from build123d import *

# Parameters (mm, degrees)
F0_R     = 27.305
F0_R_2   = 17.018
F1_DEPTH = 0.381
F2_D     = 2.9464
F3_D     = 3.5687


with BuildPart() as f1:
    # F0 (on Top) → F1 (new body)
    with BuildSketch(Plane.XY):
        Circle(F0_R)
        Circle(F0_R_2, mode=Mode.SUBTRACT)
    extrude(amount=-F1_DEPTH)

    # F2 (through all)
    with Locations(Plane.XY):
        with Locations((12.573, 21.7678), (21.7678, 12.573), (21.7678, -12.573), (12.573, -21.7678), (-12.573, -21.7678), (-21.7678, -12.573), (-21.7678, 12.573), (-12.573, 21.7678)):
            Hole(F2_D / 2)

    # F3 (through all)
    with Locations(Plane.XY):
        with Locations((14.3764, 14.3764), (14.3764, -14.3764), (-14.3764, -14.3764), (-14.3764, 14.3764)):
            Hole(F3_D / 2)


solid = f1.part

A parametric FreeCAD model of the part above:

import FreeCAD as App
import Part
import Sketcher
from FreeCAD import Vector
Q = App.Units.Quantity

doc = App.newDocument("Part")
body = doc.addObject("PartDesign::Body", "Body")

sketch1 = doc.addObject("Sketcher::SketchObject", "Sketch")
body.addObject(sketch1)
sketch1.AttachmentSupport = (doc.XY_Plane, [""])
sketch1.MapMode = "FlatFace"
sketch1.addGeometry([
    Part.Circle(Vector(0, 0, 0), Vector(0, 0, 1), 27),
    Part.Circle(Vector(0, 0, 0), Vector(0, 0, 1), 17),
], False)
sketch1.addConstraint([
    Sketcher.Constraint("Coincident", 0, 3, -1, 1),
    Sketcher.Constraint("Coincident", 1, 3, -1, 1),
    Sketcher.Constraint("Diameter", 0, Q("2.15 in")),
    Sketcher.Constraint("Diameter", 1, Q("1.34 in")),
])
pad1 = doc.addObject("PartDesign::Pad", "Pad")
body.addObject(pad1)
pad1.Profile = sketch1
pad1.Length = Q("0.015 in")
pad1.Reversed = True

sketch2 = doc.addObject("Sketcher::SketchObject", "Sketch001")
body.addObject(sketch2)
sketch2.AttachmentSupport = (doc.XY_Plane, [""])
sketch2.MapMode = "FlatFace"
sketch2.addGeometry([
    Part.Circle(Vector(12.6, 21.8, 0), Vector(0, 0, 1), 1.5),
    Part.Circle(Vector(21.8, 12.6, 0), Vector(0, 0, 1), 1.5),
    Part.Circle(Vector(21.8, -12.6, 0), Vector(0, 0, 1), 1.5),
    Part.Circle(Vector(12.6, -21.8, 0), Vector(0, 0, 1), 1.5),
    Part.Circle(Vector(-12.6, -21.8, 0), Vector(0, 0, 1), 1.5),
    Part.Circle(Vector(-21.8, -12.6, 0), Vector(0, 0, 1), 1.5),
    Part.Circle(Vector(-21.8, 12.6, 0), Vector(0, 0, 1), 1.5),
    Part.Circle(Vector(-12.6, 21.8, 0), Vector(0, 0, 1), 1.5),
], False)
sketch2.addConstraint([
    Sketcher.Constraint("Equal", 0, 1),
    Sketcher.Constraint("Equal", 1, 2),
    Sketcher.Constraint("Equal", 2, 3),
    Sketcher.Constraint("Equal", 3, 4),
    Sketcher.Constraint("Equal", 4, 5),
    Sketcher.Constraint("Equal", 5, 6),
    Sketcher.Constraint("Equal", 6, 7),
    Sketcher.Constraint("Symmetric", 0, 3, 4, 3, -1, 1),
    Sketcher.Constraint("Symmetric", 1, 3, 5, 3, -1, 1),
    Sketcher.Constraint("Symmetric", 2, 3, 6, 3, -1, 1),
    Sketcher.Constraint("Symmetric", 3, 3, 7, 3, -1, 1),
    Sketcher.Constraint("Symmetric", 3, 3, 4, 3, -2),
    Sketcher.Constraint("Symmetric", 2, 3, 5, 3, -2),
    Sketcher.Constraint("Diameter", 0, Q("0.116 in")),
    Sketcher.Constraint("DistanceY", 2, 3, 1, 3, Q("0.99 in")),
    Sketcher.Constraint("DistanceX", 4, 3, 3, 3, Q("0.99 in")),
    Sketcher.Constraint("DistanceY", -1, 1, 0, 3, Q("0.857 in")),
    Sketcher.Constraint("DistanceX", -1, 1, 1, 3, Q("0.857 in")),
])
doc.recompute()
hole = doc.addObject("PartDesign::Hole", "Hole")
body.addObject(hole)
hole.Profile = sketch2
hole.ThreadType = "None"
hole.Diameter = Q("0.116 in")
hole.DepthType = "ThroughAll"

sketch3 = doc.addObject("Sketcher::SketchObject", "Sketch002")
body.addObject(sketch3)
sketch3.AttachmentSupport = (doc.XY_Plane, [""])
sketch3.MapMode = "FlatFace"
sketch3.addGeometry([
    Part.Circle(Vector(14.4, 14.4, 0), Vector(0, 0, 1), 1.8),
    Part.Circle(Vector(14.4, -14.4, 0), Vector(0, 0, 1), 1.8),
    Part.Circle(Vector(-14.4, -14.4, 0), Vector(0, 0, 1), 1.8),
    Part.Circle(Vector(-14.4, 14.4, 0), Vector(0, 0, 1), 1.8),
], False)
sketch3.addConstraint([
    Sketcher.Constraint("Equal", 0, 1),
    Sketcher.Constraint("Equal", 1, 2),
    Sketcher.Constraint("Equal", 2, 3),
    Sketcher.Constraint("Symmetric", 0, 3, 2, 3, -1, 1),
    Sketcher.Constraint("Symmetric", 1, 3, 3, 3, -1, 1),
    Sketcher.Constraint("Symmetric", 1, 3, 2, 3, -2),
    Sketcher.Constraint("Diameter", 0, Q("0.1405 in")),
    Sketcher.Constraint("DistanceX", -1, 1, 0, 3, Q("0.566 in")),
    Sketcher.Constraint("DistanceY", -1, 1, 0, 3, Q("0.566 in")),
])
doc.recompute()
hole2 = doc.addObject("PartDesign::Hole", "Hole001")
body.addObject(hole2)
hole2.Profile = sketch3
hole2.ThreadType = "None"
hole2.Diameter = Q("0.1405 in")
hole2.DepthType = "ThroughAll"

doc.recompute()
